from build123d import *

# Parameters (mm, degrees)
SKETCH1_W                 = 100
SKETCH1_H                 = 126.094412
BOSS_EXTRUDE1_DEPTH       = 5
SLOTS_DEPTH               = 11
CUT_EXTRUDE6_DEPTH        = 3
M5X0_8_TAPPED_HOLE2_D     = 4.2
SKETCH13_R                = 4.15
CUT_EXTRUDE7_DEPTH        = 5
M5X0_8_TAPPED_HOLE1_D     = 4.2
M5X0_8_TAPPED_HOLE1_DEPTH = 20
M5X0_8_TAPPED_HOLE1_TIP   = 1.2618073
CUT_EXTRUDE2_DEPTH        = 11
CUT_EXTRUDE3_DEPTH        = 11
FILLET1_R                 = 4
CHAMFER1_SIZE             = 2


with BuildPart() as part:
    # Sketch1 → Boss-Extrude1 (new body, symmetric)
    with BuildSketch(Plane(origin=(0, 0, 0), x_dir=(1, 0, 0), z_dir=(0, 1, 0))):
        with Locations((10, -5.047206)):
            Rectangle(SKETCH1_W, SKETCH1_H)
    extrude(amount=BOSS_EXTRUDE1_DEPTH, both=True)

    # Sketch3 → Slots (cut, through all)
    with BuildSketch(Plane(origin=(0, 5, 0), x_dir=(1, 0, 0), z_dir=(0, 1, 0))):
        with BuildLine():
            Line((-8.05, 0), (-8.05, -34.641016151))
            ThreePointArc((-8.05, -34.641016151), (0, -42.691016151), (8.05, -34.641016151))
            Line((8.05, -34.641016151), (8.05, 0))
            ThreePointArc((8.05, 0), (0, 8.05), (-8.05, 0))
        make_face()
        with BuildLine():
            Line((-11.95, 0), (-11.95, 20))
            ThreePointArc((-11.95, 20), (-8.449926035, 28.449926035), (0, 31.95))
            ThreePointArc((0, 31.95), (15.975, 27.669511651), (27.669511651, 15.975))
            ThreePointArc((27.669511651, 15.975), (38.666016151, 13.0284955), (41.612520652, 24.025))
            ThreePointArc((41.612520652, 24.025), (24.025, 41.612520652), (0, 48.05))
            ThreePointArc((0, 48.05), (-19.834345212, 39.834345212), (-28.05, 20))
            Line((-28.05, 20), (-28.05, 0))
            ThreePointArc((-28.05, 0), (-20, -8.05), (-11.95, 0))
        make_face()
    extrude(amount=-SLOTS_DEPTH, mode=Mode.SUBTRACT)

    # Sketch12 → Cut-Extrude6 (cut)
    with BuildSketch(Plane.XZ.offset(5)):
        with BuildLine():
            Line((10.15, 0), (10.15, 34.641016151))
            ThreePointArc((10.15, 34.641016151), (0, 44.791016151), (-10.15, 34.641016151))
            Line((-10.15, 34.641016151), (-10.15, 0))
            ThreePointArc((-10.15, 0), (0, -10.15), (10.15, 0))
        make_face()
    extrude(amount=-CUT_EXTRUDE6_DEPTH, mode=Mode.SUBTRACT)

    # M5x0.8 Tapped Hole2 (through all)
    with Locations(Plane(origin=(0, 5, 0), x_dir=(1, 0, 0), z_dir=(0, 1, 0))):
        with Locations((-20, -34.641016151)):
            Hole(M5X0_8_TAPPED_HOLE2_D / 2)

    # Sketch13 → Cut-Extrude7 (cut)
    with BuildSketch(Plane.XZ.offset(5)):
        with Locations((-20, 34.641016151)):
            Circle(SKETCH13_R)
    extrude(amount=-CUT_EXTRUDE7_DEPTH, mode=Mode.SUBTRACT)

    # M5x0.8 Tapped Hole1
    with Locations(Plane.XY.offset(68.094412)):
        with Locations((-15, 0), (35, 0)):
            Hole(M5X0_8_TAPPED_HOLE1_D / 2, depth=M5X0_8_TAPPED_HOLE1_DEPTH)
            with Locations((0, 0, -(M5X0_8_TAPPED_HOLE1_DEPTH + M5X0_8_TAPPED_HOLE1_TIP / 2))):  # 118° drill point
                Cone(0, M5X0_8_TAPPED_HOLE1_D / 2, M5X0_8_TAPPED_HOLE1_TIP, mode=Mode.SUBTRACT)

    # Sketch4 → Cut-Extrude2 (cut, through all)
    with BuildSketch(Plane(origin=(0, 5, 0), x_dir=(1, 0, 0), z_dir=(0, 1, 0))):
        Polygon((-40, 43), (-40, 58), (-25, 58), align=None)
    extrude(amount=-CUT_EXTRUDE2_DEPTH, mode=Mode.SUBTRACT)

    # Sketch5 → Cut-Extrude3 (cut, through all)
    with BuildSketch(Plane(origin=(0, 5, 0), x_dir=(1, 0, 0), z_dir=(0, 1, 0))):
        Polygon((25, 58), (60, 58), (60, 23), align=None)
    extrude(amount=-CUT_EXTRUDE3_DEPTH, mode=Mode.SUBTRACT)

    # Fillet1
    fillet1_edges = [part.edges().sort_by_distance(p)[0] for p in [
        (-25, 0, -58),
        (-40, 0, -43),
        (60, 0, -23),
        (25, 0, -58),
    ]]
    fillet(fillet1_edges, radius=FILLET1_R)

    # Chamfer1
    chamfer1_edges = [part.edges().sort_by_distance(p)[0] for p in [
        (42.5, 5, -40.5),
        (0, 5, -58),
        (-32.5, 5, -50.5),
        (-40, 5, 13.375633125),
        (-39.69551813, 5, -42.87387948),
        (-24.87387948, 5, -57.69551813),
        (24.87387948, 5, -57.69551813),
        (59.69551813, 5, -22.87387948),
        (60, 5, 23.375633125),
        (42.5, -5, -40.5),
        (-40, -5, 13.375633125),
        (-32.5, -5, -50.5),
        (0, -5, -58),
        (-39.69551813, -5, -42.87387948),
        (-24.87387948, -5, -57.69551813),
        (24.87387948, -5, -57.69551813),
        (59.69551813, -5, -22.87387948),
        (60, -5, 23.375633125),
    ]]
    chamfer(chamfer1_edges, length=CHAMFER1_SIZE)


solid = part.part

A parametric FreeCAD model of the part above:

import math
import FreeCAD as App
import Part
import Sketcher
Q = App.Units.Quantity


def edges_at(feature, points):
    """Names of the edges that pass closest to the given points."""
    edges = feature.Shape.Edges
    near = lambda p: min(range(len(edges)), key=lambda i: edges[i].distToShape(Part.Vertex(*p))[0])
    return sorted({f"Edge{near(p) + 1}" for p in points})

doc = App.newDocument("Part")
body = doc.addObject("PartDesign::Body", "Body")

# Sketch on XZ plane
sketch1 = doc.addObject("Sketcher::SketchObject", "Sketch")
body.addObject(sketch1)
sketch1.AttachmentSupport = (doc.XZ_Plane, [""])
sketch1.MapMode = "FlatFace"
sketch1.addGeometry(Part.LineSegment(App.Vector(-40, -58, 0), App.Vector(-40, 68.094412, 0)), False)
sketch1.addGeometry(Part.LineSegment(App.Vector(-40, 68.094412, 0), App.Vector(60, 68.094412, 0)), False)
sketch1.addGeometry(Part.LineSegment(App.Vector(60, 68.094412, 0), App.Vector(60, -58, 0)), False)
sketch1.addGeometry(Part.LineSegment(App.Vector(60, -58, 0), App.Vector(-40, -58, 0)), False)
sketch1.addConstraint(Sketcher.Constraint("Coincident", 0, 2, 1, 1))
sketch1.addConstraint(Sketcher.Constraint("Coincident", 1, 2, 2, 1))
sketch1.addConstraint(Sketcher.Constraint("Coincident", 2, 2, 3, 1))
sketch1.addConstraint(Sketcher.Constraint("Coincident", 3, 2, 0, 1))
sketch1.addConstraint(Sketcher.Constraint("Vertical", 0))
sketch1.addConstraint(Sketcher.Constraint("Horizontal", 1))
sketch1.addConstraint(Sketcher.Constraint("Vertical", 2))
sketch1.addConstraint(Sketcher.Constraint("Horizontal", 3))
sketch1.addConstraint(Sketcher.Constraint("DistanceX", 1, 1, 1, 2, Q("100 mm")))
sketch1.addConstraint(Sketcher.Constraint("DistanceX", 0, 2, -1, 1, Q("40 mm")))
sketch1.addConstraint(Sketcher.Constraint("DistanceY", 2, 2, -1, 1, Q("58 mm")))
sketch1.addConstraint(Sketcher.Constraint("DistanceY", 0, 1, 0, 2, Q("126.094412 mm")))
pad1 = doc.addObject("PartDesign::Pad", "Pad")
body.addObject(pad1)
pad1.Profile = sketch1
pad1.Length = 10
pad1.Midplane = True

# Sketch on XZ plane
sketch2 = doc.addObject("Sketcher::SketchObject", "Sketch001")
body.addObject(sketch2)
sketch2.AttachmentSupport = (doc.XZ_Plane, [""])
sketch2.MapMode = "FlatFace"
sketch2.AttachmentOffset = App.Placement(App.Vector(0, 0, -5), App.Rotation())
sketch2.addGeometry(Part.LineSegment(App.Vector(-8.05, 0, 0), App.Vector(-8.05, 34.641016, 0)), False)
sketch2.addGeometry(Part.ArcOfCircle(Part.Circle(App.Vector(0, 34.641016, 0), App.Vector(0, 0, 1), 8.05), math.radians(0), math.radians(180)), False)
sketch2.addGeometry(Part.LineSegment(App.Vector(8.05, 34.641016, 0), App.Vector(8.05, 0, 0)), False)
sketch2.addGeometry(Part.ArcOfCircle(Part.Circle(App.Vector(0, 0, 0), App.Vector(0, 0, 1), 8.05), math.radians(180), math.radians(360)), False)
sketch2.addGeometry(Part.LineSegment(App.Vector(-11.95, 0, 0), App.Vector(-11.95, -20, 0)), False)
sketch2.addGeometry(Part.ArcOfCircle(Part.Circle(App.Vector(0, -20, 0), App.Vector(0, 0, 1), 11.95), math.radians(-180), math.radians(-90)), False)
sketch2.addGeometry(Part.ArcOfCircle(Part.Circle(App.Vector(0, 0, 0), App.Vector(0, 0, 1), 31.95), math.radians(-90), math.radians(-30)), False)
sketch2.addGeometry(Part.ArcOfCircle(Part.Circle(App.Vector(34.641016, -20, 0), App.Vector(0, 0, 1), 8.05), math.radians(-30), math.radians(150)), False)
sketch2.addGeometry(Part.ArcOfCircle(Part.Circle(App.Vector(0, 0, 0), App.Vector(0, 0, 1), 48.05), math.radians(-90), math.radians(-30)), False)
sketch2.addGeometry(Part.ArcOfCircle(Part.Circle(App.Vector(0, -20, 0), App.Vector(0, 0, 1), 28.05), math.radians(-180), math.radians(-90)), False)
sketch2.addGeometry(Part.LineSegment(App.Vector(-28.05, -20, 0), App.Vector(-28.05, 0, 0)), False)
sketch2.addGeometry(Part.ArcOfCircle(Part.Circle(App.Vector(-20, 0, 0), App.Vector(0, 0, 1), 8.05), math.radians(0), math.radians(180)), False)
sketch2.addConstraint(Sketcher.Constraint("Tangent", 0, 2, 1, 2))
sketch2.addConstraint(Sketcher.Constraint("Tangent", 1, 1, 2, 1))
sketch2.addConstraint(Sketcher.Constraint("Tangent", 2, 2, 3, 2))
sketch2.addConstraint(Sketcher.Constraint("Tangent", 3, 1, 0, 1))
sketch2.addConstraint(Sketcher.Constraint("Tangent", 4, 2, 5, 1))
sketch2.addConstraint(Sketcher.Constraint("Tangent", 5, 2, 6, 1))
sketch2.addConstraint(Sketcher.Constraint("Tangent", 6, 2, 7, 2))
sketch2.addConstraint(Sketcher.Constraint("Tangent", 7, 1, 8, 2))
sketch2.addConstraint(Sketcher.Constraint("Tangent", 8, 1, 9, 2))
sketch2.addConstraint(Sketcher.Constraint("Tangent", 9, 1, 10, 1))
sketch2.addConstraint(Sketcher.Constraint("Tangent", 10, 2, 11, 2))
sketch2.addConstraint(Sketcher.Constraint("Tangent", 11, 1, 4, 1))
sketch2.addConstraint(Sketcher.Constraint("Vertical", 0))
sketch2.addConstraint(Sketcher.Constraint("Vertical", 2))
sketch2.addConstraint(Sketcher.Constraint("Vertical", 4))
sketch2.addConstraint(Sketcher.Constraint("Vertical", 10))
sketch2.addConstraint(Sketcher.Constraint("Coincident", 3, 3, -1, 1))
sketch2.addConstraint(Sketcher.Constraint("Coincident", 6, 3, -1, 1))
sketch2.addConstraint(Sketcher.Constraint("Coincident", 8, 3, -1, 1))
sketch2.addConstraint(Sketcher.Constraint("Coincident", 9, 3, 5, 3))
sketch2.addConstraint(Sketcher.Constraint("Equal", 3, 7))
sketch2.addConstraint(Sketcher.Constraint("PointOnObject", 5, 3, -2))
sketch2.addConstraint(Sketcher.Constraint("PointOnObject", 11, 3, -1))
sketch2.addConstraint(Sketcher.Constraint("Horizontal", 5, 3, 7, 3))
sketch2.addConstraint(Sketcher.Constraint("DistanceY", 4, 2, 4, 1, Q("20 mm")))
sketch2.addConstraint(Sketcher.Constraint("Radius", 1, Q("8.05 mm")))
sketch2.addConstraint(Sketcher.Constraint("Radius", 5, Q("11.95 mm")))
sketch2.addConstraint(Sketcher.Constraint("DistanceY", 0, 1, 0, 2, Q("34.641016 mm")))
pocket1 = doc.addObject("PartDesign::Pocket", "Pocket")
body.addObject(pocket1)
pocket1.Profile = sketch2
pocket1.Type = "ThroughAll"
pocket1.Reversed = True

# Sketch on XZ plane
sketch3 = doc.addObject("Sketcher::SketchObject", "Sketch002")
body.addObject(sketch3)
sketch3.AttachmentSupport = (doc.XZ_Plane, [""])
sketch3.MapMode = "FlatFace"
sketch3.AttachmentOffset = App.Placement(App.Vector(0, 0, 5), App.Rotation())
sketch3.addGeometry(Part.LineSegment(App.Vector(10.15, 0, 0), App.Vector(10.15, 34.641016, 0)), False)
sketch3.addGeometry(Part.ArcOfCircle(Part.Circle(App.Vector(0, 34.641016, 0), App.Vector(0, 0, 1), 10.15), math.radians(0), math.radians(180)), False)
sketch3.addGeometry(Part.LineSegment(App.Vector(-10.15, 34.641016, 0), App.Vector(-10.15, 0, 0)), False)
sketch3.addGeometry(Part.ArcOfCircle(Part.Circle(App.Vector(0, 0, 0), App.Vector(0, 0, 1), 10.15), math.radians(180), math.radians(360)), False)
sketch3.addConstraint(Sketcher.Constraint("Tangent", 0, 2, 1, 1))
sketch3.addConstraint(Sketcher.Constraint("Tangent", 1, 2, 2, 1))
sketch3.addConstraint(Sketcher.Constraint("Tangent", 2, 2, 3, 1))
sketch3.addConstraint(Sketcher.Constraint("Tangent", 3, 2, 0, 1))
sketch3.addConstraint(Sketcher.Constraint("Vertical", 0))
sketch3.addConstraint(Sketcher.Constraint("Vertical", 2))
sketch3.addConstraint(Sketcher.Constraint("Coincident", 3, 3, -1, 1))
sketch3.addConstraint(Sketcher.Constraint("Radius", 1, Q("10.15 mm")))
sketch3.addConstraint(Sketcher.Constraint("DistanceY", 0, 1, 0, 2, Q("34.641016 mm")))
pocket2 = doc.addObject("PartDesign::Pocket", "Pocket001")
body.addObject(pocket2)
pocket2.Profile = sketch3
pocket2.Length = 3

# Sketch on XZ plane
sketch4 = doc.addObject("Sketcher::SketchObject", "Sketch003")
body.addObject(sketch4)
sketch4.AttachmentSupport = (doc.XZ_Plane, [""])
sketch4.MapMode = "FlatFace"
sketch4.AttachmentOffset = App.Placement(App.Vector(0, 0, -5), App.Rotation())
sketch4.addGeometry(Part.Circle(App.Vector(-20, 34.641016, 0), App.Vector(0, 0, 1), 2.1), False)
sketch4.addConstraint(Sketcher.Constraint("Diameter", 0, Q("4.2 mm")))
sketch4.addConstraint(Sketcher.Constraint("DistanceX", 0, 3, -1, 1, Q("20 mm")))
sketch4.addConstraint(Sketcher.Constraint("DistanceY", -1, 1, 0, 3, Q("34.641016 mm")))
doc.recompute()
hole = doc.addObject("PartDesign::Hole", "Hole")
body.addObject(hole)
hole.Profile = sketch4
hole.ThreadType = "None"
hole.Diameter = 4.2
hole.DepthType = "ThroughAll"
hole.Reversed = True

# Sketch on XZ plane
sketch5 = doc.addObject("Sketcher::SketchObject", "Sketch004")
body.addObject(sketch5)
sketch5.AttachmentSupport = (doc.XZ_Plane, [""])
sketch5.MapMode = "FlatFace"
sketch5.AttachmentOffset = App.Placement(App.Vector(0, 0, 5), App.Rotation())
sketch5.addGeometry(Part.Circle(App.Vector(-20, 34.641016, 0), App.Vector(0, 0, 1), 4.15), False)
sketch5.addConstraint(Sketcher.Constraint("Diameter", 0, Q("8.3 mm")))
sketch5.addConstraint(Sketcher.Constraint("DistanceX", 0, 3, -1, 1, Q("20 mm")))
sketch5.addConstraint(Sketcher.Constraint("DistanceY", -1, 1, 0, 3, Q("34.641016 mm")))
pocket3 = doc.addObject("PartDesign::Pocket", "Pocket002")
body.addObject(pocket3)
pocket3.Profile = sketch5
pocket3.Length = 5

# Sketch on XY plane
sketch6 = doc.addObject("Sketcher::SketchObject", "Sketch005")
body.addObject(sketch6)
sketch6.AttachmentSupport = (doc.XY_Plane, [""])
sketch6.MapMode = "FlatFace"
sketch6.AttachmentOffset = App.Placement(App.Vector(0, 0, 68.094412), App.Rotation())
sketch6.addGeometry(Part.Circle(App.Vector(-15, 0, 0), App.Vector(0, 0, 1), 2.1), False)
sketch6.addGeometry(Part.Circle(App.Vector(35, 0, 0), App.Vector(0, 0, 1), 2.1), False)
sketch6.addConstraint(Sketcher.Constraint("Equal", 0, 1))
sketch6.addConstraint(Sketcher.Constraint("PointOnObject", 0, 3, -1))
sketch6.addConstraint(Sketcher.Constraint("PointOnObject", 1, 3, -1))
sketch6.addConstraint(Sketcher.Constraint("Diameter", 0, Q("4.2 mm")))
sketch6.addConstraint(Sketcher.Constraint("DistanceX", 0, 3, -1, 1, Q("15 mm")))
sketch6.addConstraint(Sketcher.Constraint("DistanceX", -1, 1, 1, 3, Q("35 mm")))
doc.recompute()
hole2 = doc.addObject("PartDesign::Hole", "Hole001")
body.addObject(hole2)
hole2.Profile = sketch6
hole2.ThreadType = "None"
hole2.Diameter = 4.2
hole2.DepthType = "Dimension"
hole2.Depth = 20
hole2.DrillPoint = "Angled"
hole2.DrillPointAngle = 118

# Sketch on XZ plane
sketch7 = doc.addObject("Sketcher::SketchObject", "Sketch006")
body.addObject(sketch7)
sketch7.AttachmentSupport = (doc.XZ_Plane, [""])
sketch7.MapMode = "FlatFace"
sketch7.AttachmentOffset = App.Placement(App.Vector(0, 0, -5), App.Rotation())
sketch7.addGeometry(Part.LineSegment(App.Vector(-40, -58, 0), App.Vector(-40, -43, 0)), False)
sketch7.addGeometry(Part.LineSegment(App.Vector(-40, -43, 0), App.Vector(-25, -58, 0)), False)
sketch7.addGeometry(Part.LineSegment(App.Vector(-25, -58, 0), App.Vector(-40, -58, 0)), False)
sketch7.addConstraint(Sketcher.Constraint("Coincident", 0, 2, 1, 1))
sketch7.addConstraint(Sketcher.Constraint("Coincident", 1, 2, 2, 1))
sketch7.addConstraint(Sketcher.Constraint("Coincident", 2, 2, 0, 1))
sketch7.addConstraint(Sketcher.Constraint("Vertical", 0))
sketch7.addConstraint(Sketcher.Constraint("Horizontal", 2))
sketch7.addConstraint(Sketcher.Constraint("Equal", 2, 0))
sketch7.addConstraint(Sketcher.Constraint("DistanceX", 2, 2, 2, 1, Q("15 mm")))
sketch7.addConstraint(Sketcher.Constraint("DistanceX", 0, 2, -1, 1, Q("40 mm")))
sketch7.addConstraint(Sketcher.Constraint("DistanceY", 0, 2, -1, 1, Q("43 mm")))
pocket4 = doc.addObject("PartDesign::Pocket", "Pocket003")
body.addObject(pocket4)
pocket4.Profile = sketch7
pocket4.Type = "ThroughAll"
pocket4.Reversed = True

# Sketch on XZ plane
sketch8 = doc.addObject("Sketcher::SketchObject", "Sketch007")
body.addObject(sketch8)
sketch8.AttachmentSupport = (doc.XZ_Plane, [""])
sketch8.MapMode = "FlatFace"
sketch8.AttachmentOffset = App.Placement(App.Vector(0, 0, -5), App.Rotation())
sketch8.addGeometry(Part.LineSegment(App.Vector(60, -58, 0), App.Vector(25, -58, 0)), False)
sketch8.addGeometry(Part.LineSegment(App.Vector(25, -58, 0), App.Vector(60, -23, 0)), False)
sketch8.addGeometry(Part.LineSegment(App.Vector(60, -23, 0), App.Vector(60, -58, 0)), False)
sketch8.addConstraint(Sketcher.Constraint("Coincident", 0, 2, 1, 1))
sketch8.addConstraint(Sketcher.Constraint("Coincident", 1, 2, 2, 1))
sketch8.addConstraint(Sketcher.Constraint("Coincident", 2, 2, 0, 1))
sketch8.addConstraint(Sketcher.Constraint("Horizontal", 0))
sketch8.addConstraint(Sketcher.Constraint("Vertical", 2))
sketch8.addConstraint(Sketcher.Constraint("Equal", 0, 2))
sketch8.addConstraint(Sketcher.Constraint("DistanceX", 0, 2, 0, 1, Q("35 mm")))
sketch8.addConstraint(Sketcher.Constraint("DistanceX", -1, 1, 0, 2, Q("25 mm")))
sketch8.addConstraint(Sketcher.Constraint("DistanceY", 0, 2, -1, 1, Q("58 mm")))
pocket5 = doc.addObject("PartDesign::Pocket", "Pocket004")
body.addObject(pocket5)
pocket5.Profile = sketch8
pocket5.Type = "ThroughAll"
pocket5.Reversed = True
doc.recompute()

fillet = doc.addObject("PartDesign::Fillet", "Fillet")
body.addObject(fillet)
fillet.Base = (pocket5, edges_at(pocket5, [
    (-25, 0, -58),
    (-40, 0, -43),
    (60, 0, -23),
    (25, 0, -58),
]))
fillet.Radius = 4
doc.recompute()

chamfer = doc.addObject("PartDesign::Chamfer", "Chamfer")
body.addObject(chamfer)
chamfer.Base = (fillet, edges_at(fillet, [
    (42.5, 5, -40.5),
    (0, 5, -58),
    (-32.5, 5, -50.5),
    (-40, 5, 13.376),
    (-39.696, 5, -42.874),
    (-24.874, 5, -57.696),
    (24.874, 5, -57.696),
    (59.696, 5, -22.874),
    (60, 5, 23.376),
    (42.5, -5, -40.5),
    (-40, -5, 13.376),
    (-32.5, -5, -50.5),
    (0, -5, -58),
    (-39.696, -5, -42.874),
    (-24.874, -5, -57.696),
    (24.874, -5, -57.696),
    (59.696, -5, -22.874),
    (60, -5, 23.376),
]))
chamfer.Size = 2

doc.recompute()
